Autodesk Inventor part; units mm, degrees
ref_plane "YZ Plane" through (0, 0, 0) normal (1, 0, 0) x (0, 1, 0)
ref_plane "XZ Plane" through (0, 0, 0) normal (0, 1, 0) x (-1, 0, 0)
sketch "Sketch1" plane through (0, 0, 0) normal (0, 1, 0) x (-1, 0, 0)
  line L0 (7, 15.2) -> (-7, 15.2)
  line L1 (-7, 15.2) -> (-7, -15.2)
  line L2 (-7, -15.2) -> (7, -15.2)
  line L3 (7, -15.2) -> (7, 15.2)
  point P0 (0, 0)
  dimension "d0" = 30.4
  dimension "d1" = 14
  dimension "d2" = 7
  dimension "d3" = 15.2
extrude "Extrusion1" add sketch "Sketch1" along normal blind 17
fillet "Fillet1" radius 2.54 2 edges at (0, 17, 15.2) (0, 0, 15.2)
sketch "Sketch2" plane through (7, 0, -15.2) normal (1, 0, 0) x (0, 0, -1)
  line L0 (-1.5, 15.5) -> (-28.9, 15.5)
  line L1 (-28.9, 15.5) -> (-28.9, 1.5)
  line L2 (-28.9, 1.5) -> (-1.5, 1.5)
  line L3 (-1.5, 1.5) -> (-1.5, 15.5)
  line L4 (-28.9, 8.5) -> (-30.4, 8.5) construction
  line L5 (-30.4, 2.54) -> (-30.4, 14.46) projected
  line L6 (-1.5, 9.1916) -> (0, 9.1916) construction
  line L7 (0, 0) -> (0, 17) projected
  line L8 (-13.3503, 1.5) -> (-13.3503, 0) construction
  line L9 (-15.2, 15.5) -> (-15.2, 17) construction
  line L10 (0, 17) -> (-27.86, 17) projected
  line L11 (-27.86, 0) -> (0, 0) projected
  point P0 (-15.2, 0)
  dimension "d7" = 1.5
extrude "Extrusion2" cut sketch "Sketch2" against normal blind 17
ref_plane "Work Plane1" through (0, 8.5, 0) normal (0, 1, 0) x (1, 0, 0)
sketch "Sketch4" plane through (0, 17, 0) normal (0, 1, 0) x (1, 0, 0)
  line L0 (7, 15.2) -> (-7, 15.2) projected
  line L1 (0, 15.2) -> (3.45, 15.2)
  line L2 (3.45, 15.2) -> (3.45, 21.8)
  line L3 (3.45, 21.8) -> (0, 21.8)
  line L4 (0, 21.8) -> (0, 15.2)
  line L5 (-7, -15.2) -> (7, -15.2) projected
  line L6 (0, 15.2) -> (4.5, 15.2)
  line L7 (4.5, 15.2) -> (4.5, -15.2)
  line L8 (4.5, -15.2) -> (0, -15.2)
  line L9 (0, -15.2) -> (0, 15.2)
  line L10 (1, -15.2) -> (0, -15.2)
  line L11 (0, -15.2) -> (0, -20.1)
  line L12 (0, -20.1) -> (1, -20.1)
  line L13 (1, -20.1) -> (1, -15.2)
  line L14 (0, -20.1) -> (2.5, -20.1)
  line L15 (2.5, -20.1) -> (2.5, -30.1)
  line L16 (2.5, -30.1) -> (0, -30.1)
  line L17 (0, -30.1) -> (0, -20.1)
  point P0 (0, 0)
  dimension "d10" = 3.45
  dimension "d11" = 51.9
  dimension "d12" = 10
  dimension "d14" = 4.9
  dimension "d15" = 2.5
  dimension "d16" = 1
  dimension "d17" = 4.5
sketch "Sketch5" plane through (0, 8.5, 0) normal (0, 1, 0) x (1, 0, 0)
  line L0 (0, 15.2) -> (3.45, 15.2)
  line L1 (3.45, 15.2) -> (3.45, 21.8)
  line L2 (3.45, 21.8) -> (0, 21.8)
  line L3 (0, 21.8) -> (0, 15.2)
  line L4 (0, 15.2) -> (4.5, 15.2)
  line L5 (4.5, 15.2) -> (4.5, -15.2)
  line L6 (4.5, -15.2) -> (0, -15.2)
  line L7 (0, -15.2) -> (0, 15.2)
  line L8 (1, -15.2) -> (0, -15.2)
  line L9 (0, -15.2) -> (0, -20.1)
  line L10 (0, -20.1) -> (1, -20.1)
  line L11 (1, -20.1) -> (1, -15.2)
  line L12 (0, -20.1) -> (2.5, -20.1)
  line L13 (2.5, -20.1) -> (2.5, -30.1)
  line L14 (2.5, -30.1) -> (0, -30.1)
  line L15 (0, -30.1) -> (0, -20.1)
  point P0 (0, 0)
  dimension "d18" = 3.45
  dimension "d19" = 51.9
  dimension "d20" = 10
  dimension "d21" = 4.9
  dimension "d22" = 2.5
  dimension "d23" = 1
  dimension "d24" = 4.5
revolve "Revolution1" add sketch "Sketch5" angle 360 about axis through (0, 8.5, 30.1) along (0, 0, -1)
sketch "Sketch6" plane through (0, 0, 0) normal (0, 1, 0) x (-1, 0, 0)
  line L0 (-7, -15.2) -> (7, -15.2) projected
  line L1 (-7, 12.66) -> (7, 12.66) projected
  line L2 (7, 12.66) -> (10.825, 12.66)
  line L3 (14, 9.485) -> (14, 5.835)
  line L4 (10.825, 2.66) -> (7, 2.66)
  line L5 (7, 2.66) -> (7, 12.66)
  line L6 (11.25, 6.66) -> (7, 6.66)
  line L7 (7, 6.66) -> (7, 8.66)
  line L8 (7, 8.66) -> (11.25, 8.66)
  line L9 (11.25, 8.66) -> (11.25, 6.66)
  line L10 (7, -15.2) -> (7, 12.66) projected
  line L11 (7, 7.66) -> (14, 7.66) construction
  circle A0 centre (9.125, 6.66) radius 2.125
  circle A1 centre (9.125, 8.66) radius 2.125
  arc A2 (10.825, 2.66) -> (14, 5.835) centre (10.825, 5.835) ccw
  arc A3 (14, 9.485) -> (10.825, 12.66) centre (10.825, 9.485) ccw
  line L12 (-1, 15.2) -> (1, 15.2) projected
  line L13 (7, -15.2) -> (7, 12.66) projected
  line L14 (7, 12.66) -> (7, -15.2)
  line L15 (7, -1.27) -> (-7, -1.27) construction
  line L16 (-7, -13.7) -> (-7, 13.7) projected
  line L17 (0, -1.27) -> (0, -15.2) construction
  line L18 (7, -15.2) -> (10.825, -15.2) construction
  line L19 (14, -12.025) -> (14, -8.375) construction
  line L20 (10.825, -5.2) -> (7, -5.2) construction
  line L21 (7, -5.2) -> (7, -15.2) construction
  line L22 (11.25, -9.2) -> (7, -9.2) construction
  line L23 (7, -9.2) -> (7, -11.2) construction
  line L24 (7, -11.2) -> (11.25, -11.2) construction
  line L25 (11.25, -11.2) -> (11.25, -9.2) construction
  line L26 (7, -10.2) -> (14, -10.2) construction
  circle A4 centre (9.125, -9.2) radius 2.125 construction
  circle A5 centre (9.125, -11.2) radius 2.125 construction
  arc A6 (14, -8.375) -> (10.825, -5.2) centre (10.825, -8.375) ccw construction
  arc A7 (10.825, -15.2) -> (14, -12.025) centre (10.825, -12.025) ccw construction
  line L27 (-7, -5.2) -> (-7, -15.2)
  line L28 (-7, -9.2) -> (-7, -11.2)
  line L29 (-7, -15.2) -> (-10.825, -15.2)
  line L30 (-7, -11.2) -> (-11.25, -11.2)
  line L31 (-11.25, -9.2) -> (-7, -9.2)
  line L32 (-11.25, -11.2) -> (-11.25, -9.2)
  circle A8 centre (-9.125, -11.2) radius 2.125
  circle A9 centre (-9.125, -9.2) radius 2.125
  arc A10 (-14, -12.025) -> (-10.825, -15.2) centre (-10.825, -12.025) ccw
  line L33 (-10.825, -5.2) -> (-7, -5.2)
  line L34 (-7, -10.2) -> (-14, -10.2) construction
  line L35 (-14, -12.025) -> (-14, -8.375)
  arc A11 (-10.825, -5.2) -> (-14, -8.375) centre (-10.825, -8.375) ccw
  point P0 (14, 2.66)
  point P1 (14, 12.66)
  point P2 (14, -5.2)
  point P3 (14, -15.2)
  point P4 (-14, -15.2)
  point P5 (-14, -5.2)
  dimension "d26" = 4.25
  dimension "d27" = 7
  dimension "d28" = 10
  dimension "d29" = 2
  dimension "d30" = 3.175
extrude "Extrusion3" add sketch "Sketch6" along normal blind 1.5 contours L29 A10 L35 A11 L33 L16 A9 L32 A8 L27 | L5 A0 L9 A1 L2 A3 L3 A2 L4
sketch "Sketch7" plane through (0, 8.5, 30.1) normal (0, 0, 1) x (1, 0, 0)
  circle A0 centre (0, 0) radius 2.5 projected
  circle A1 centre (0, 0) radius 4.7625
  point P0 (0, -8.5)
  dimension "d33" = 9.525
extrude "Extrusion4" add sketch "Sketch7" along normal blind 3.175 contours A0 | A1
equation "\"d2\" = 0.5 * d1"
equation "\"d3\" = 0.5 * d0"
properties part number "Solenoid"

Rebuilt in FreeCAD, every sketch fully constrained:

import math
import FreeCAD as App
import Part
import Sketcher
from FreeCAD import Vector


def edges_at(feature, points):
    """Names of the edges that pass closest to the given points."""
    edges = feature.Shape.Edges
    near = lambda p: min(range(len(edges)), key=lambda i: edges[i].distToShape(Part.Vertex(*p))[0])
    return sorted({f"Edge{near(p) + 1}" for p in points})


def add_polygon(sketch, points):
    """Adds a closed chain of lines whose ends are joined by coincident constraints."""
    first, n = sketch.GeometryCount, len(points)
    for a, b in zip(points, points[1:] + points[:1]):
        sketch.addGeometry(Part.LineSegment(App.Vector(*a, 0), App.Vector(*b, 0)), False)
    for i in range(n):
        sketch.addConstraint(Sketcher.Constraint("Coincident", first + i, 2, first + (i + 1) % n, 1))

doc = App.newDocument("Part")
body = doc.addObject("PartDesign::Body", "Body")

# Sketch on XZ plane
sketch1 = body.newObject("Sketcher::SketchObject", "Sketch")
sketch1.AttachmentSupport = (doc.getObject("XZ_Plane"), [""])
sketch1.MapMode = "FlatFace"
add_polygon(sketch1, [(-7, -15.2), (-7, 15.2), (7, 15.2), (7, -15.2)])  # lines 0-3
sketch1.addConstraint([
    Sketcher.Constraint("Vertical", 0),
    Sketcher.Constraint("Horizontal", 1),
    Sketcher.Constraint("Vertical", 2),
    Sketcher.Constraint("Horizontal", 3),
    Sketcher.Constraint("Symmetric", 0, 2, 2, 2, -1, 1),
    Sketcher.Constraint("DistanceX", 1, 1, 1, 2, 14.0),
    Sketcher.Constraint("DistanceY", 0, 1, 0, 2, 30.4),
])
pad1 = body.newObject("PartDesign::Pad", "Pad")
pad1.Profile = sketch1
pad1.Length = 17
pad1.Reversed = True
doc.recompute()

fillet = body.newObject("PartDesign::Fillet", "Fillet")
fillet.Base = (pad1, edges_at(pad1, [(0, 17, 15.2), (0, 0, 15.2)]))
fillet.Radius = 2.54

# Sketch on YZ plane
sketch2 = body.newObject("Sketcher::SketchObject", "Sketch001")
sketch2.AttachmentSupport = (doc.getObject("YZ_Plane"), [""])
sketch2.MapMode = "FlatFace"
sketch2.AttachmentOffset = App.Placement(Vector(0, 0, 7), App.Rotation())
add_polygon(sketch2, [(1.5, -13.7), (15.5, -13.7), (15.5, 13.7), (1.5, 13.7)])  # lines 0-3
sketch2.addConstraint([
    Sketcher.Constraint("Horizontal", 0),
    Sketcher.Constraint("Vertical", 1),
    Sketcher.Constraint("Horizontal", 2),
    Sketcher.Constraint("Vertical", 3),
    Sketcher.Constraint("DistanceX", -1, 1, 2, 2, 1.5),
    Sketcher.Constraint("DistanceX", 0, 1, 0, 2, 14.0),
    Sketcher.Constraint("DistanceY", 1, 1, 1, 2, 27.4),
    Sketcher.Constraint("DistanceY", 0, 2, -1, 1, 13.7),
])
pocket1 = body.newObject("PartDesign::Pocket", "Pocket")
pocket1.Profile = sketch2
pocket1.Length = 17

# Sketch on XZ plane
sketch3 = body.newObject("Sketcher::SketchObject", "Sketch002")
sketch3.AttachmentSupport = (doc.getObject("XZ_Plane"), [""])
sketch3.MapMode = "FlatFace"
sketch3.AttachmentOffset = App.Placement(Vector(0, 0, -8.5), App.Rotation())
add_polygon(sketch3, [(0, -21.8), (0, 30.1), (2.5, 30.1), (2.5, 20.1), (1, 20.1), (1, 15.2), (4.5, 15.2), (4.5, -15.2), (3.45, -15.2), (3.45, -21.8)])  # lines 0-9
sketch3.addConstraint([
    Sketcher.Constraint("Vertical", 0),
    Sketcher.Constraint("Horizontal", 1),
    Sketcher.Constraint("Vertical", 2),
    Sketcher.Constraint("Horizontal", 3),
    Sketcher.Constraint("Vertical", 4),
    Sketcher.Constraint("Horizontal", 5),
    Sketcher.Constraint("Vertical", 6),
    Sketcher.Constraint("Horizontal", 7),
    Sketcher.Constraint("Vertical", 8),
    Sketcher.Constraint("Horizontal", 9),
    Sketcher.Constraint("PointOnObject", 0, 2, -2),
    Sketcher.Constraint("DistanceY", 2, 2, 2, 1, 10.0),
    Sketcher.Constraint("DistanceX", 1, 1, 1, 2, 2.5),
    Sketcher.Constraint("DistanceY", 0, 1, 0, 2, 51.9),
    Sketcher.Constraint("DistanceY", 4, 2, 4, 1, 4.9),
    Sketcher.Constraint("DistanceX", -1, 1, 3, 2, 1.0),
    Sketcher.Constraint("DistanceX", 9, 2, 9, 1, 3.45),
    Sketcher.Constraint("DistanceX", -1, 1, 5, 2, 4.5),
    Sketcher.Constraint("DistanceY", 6, 2, 6, 1, 30.4),
    Sketcher.Constraint("DistanceY", -1, 1, 0, 2, 30.1),
])
revolution = body.newObject("PartDesign::Revolution", "Revolution")
revolution.Profile = sketch3
revolution.ReferenceAxis = (sketch3, ["V_Axis"])
revolution.Angle = 360

# Sketch on XZ plane
sketch4 = body.newObject("Sketcher::SketchObject", "Sketch003")
sketch4.AttachmentSupport = (doc.getObject("XZ_Plane"), [""])
sketch4.MapMode = "FlatFace"
sketch4.addGeometry([
    Part.LineSegment(Vector(10.825, -15.2, 0), Vector(7, -15.2, 0)),  # 0
    Part.LineSegment(Vector(7, -15.2, 0), Vector(7, -11.2, 0)),  # 1
    Part.ArcOfCircle(Part.Circle(Vector(9.125, -11.2, 0), Vector(0, 0, 1), 2.125), math.radians(180), math.radians(360)),  # 2
    Part.LineSegment(Vector(11.25, -11.2, 0), Vector(11.25, -9.2, 0)),  # 3
    Part.ArcOfCircle(Part.Circle(Vector(9.125, -9.2, 0), Vector(0, 0, 1), 2.125), math.radians(0), math.radians(180)),  # 4
    Part.LineSegment(Vector(7, -9.2, 0), Vector(7, -5.2, 0)),  # 5
    Part.LineSegment(Vector(7, -5.2, 0), Vector(10.825, -5.2, 0)),  # 6
    Part.ArcOfCircle(Part.Circle(Vector(10.825, -8.375, 0), Vector(0, 0, 1), 3.175), math.radians(0), math.radians(90)),  # 7
    Part.LineSegment(Vector(14, -8.375, 0), Vector(14, -12.025, 0)),  # 8
    Part.ArcOfCircle(Part.Circle(Vector(10.825, -12.025, 0), Vector(0, 0, 1), 3.175), math.radians(-90), math.radians(0)),  # 9
    Part.LineSegment(Vector(-7, 6.66, 0), Vector(-7, 2.66, 0)),  # 10
    Part.LineSegment(Vector(-7, 2.66, 0), Vector(-10.825, 2.66, 0)),  # 11
    Part.ArcOfCircle(Part.Circle(Vector(-10.825, 5.835, 0), Vector(0, 0, 1), 3.175), math.radians(180), math.radians(270)),  # 12
    Part.LineSegment(Vector(-14, 5.835, 0), Vector(-14, 9.485, 0)),  # 13
    Part.ArcOfCircle(Part.Circle(Vector(-10.825, 9.485, 0), Vector(0, 0, 1), 3.175), math.radians(90), math.radians(180)),  # 14
    Part.LineSegment(Vector(-10.825, 12.66, 0), Vector(-7, 12.66, 0)),  # 15
    Part.LineSegment(Vector(-7, 12.66, 0), Vector(-7, 8.66, 0)),  # 16
    Part.ArcOfCircle(Part.Circle(Vector(-9.125, 8.66, 0), Vector(0, 0, 1), 2.125), math.radians(0), math.radians(180)),  # 17
    Part.LineSegment(Vector(-11.25, 8.66, 0), Vector(-11.25, 6.66, 0)),  # 18
    Part.ArcOfCircle(Part.Circle(Vector(-9.125, 6.66, 0), Vector(0, 0, 1), 2.125), math.radians(180), math.radians(360)),  # 19
], False)
sketch4.addConstraint([
    Sketcher.Constraint("Coincident", 0, 2, 1, 1),
    Sketcher.Constraint("Tangent", 1, 2, 2, 1),
    Sketcher.Constraint("Tangent", 2, 2, 3, 1),
    Sketcher.Constraint("Tangent", 3, 2, 4, 1),
    Sketcher.Constraint("Tangent", 4, 2, 5, 1),
    Sketcher.Constraint("Coincident", 5, 2, 6, 1),
    Sketcher.Constraint("Tangent", 6, 2, 7, 2),
    Sketcher.Constraint("Tangent", 7, 1, 8, 1),
    Sketcher.Constraint("Tangent", 8, 2, 9, 2),
    Sketcher.Constraint("Tangent", 9, 1, 0, 1),
    Sketcher.Constraint("Coincident", 10, 2, 11, 1),
    Sketcher.Constraint("Tangent", 11, 2, 12, 2),
    Sketcher.Constraint("Tangent", 12, 1, 13, 1),
    Sketcher.Constraint("Tangent", 13, 2, 14, 2),
    Sketcher.Constraint("Tangent", 14, 1, 15, 1),
    Sketcher.Constraint("Coincident", 15, 2, 16, 1),
    Sketcher.Constraint("Tangent", 16, 2, 17, 1),
    Sketcher.Constraint("Tangent", 17, 2, 18, 1),
    Sketcher.Constraint("Tangent", 18, 2, 19, 1),
    Sketcher.Constraint("Tangent", 19, 2, 10, 1),
    Sketcher.Constraint("Horizontal", 0),
    Sketcher.Constraint("Vertical", 1),
    Sketcher.Constraint("Vertical", 3),
    Sketcher.Constraint("Vertical", 5),
    Sketcher.Constraint("Horizontal", 6),
    Sketcher.Constraint("Vertical", 8),
    Sketcher.Constraint("Vertical", 10),
    Sketcher.Constraint("Horizontal", 11),
    Sketcher.Constraint("Vertical", 13),
    Sketcher.Constraint("Horizontal", 15),
    Sketcher.Constraint("Vertical", 16),
    Sketcher.Constraint("Vertical", 18),
    Sketcher.Constraint("Equal", 2, 4),
    Sketcher.Constraint("Equal", 7, 9),
    Sketcher.Constraint("Equal", 9, 12),
    Sketcher.Constraint("Equal", 12, 14),
    Sketcher.Constraint("Equal", 4, 17),
    Sketcher.Constraint("Equal", 17, 19),
    Sketcher.Constraint("Equal", 6, 11),
    Sketcher.Constraint("Equal", 1, 5),
    Sketcher.Constraint("Equal", 5, 10),
    Sketcher.Constraint("Equal", 8, 13),
    Sketcher.Constraint("Equal", 10, 16),
    Sketcher.Constraint("DistanceY", 3, 1, 3, 2, 2.0),
    Sketcher.Constraint("DistanceX", -1, 1, 0, 2, 7.0),
    Sketcher.Constraint("DistanceX", 10, 2, -1, 1, 7.0),
    Sketcher.Constraint("Radius", 2, 2.125),
    Sketcher.Constraint("Radius", 7, 3.175),
    Sketcher.Constraint("DistanceX", 13, 2, 15, 2, 7.0),
    Sketcher.Constraint("DistanceY", 1, 1, 1, 2, 4.0),
    Sketcher.Constraint("DistanceY", 2, 3, -1, 1, 11.2),
    Sketcher.Constraint("DistanceY", -1, 1, 17, 3, 8.66),
])
pad2 = body.newObject("PartDesign::Pad", "Pad001")
pad2.Profile = sketch4
pad2.Length = 1.5
pad2.Reversed = True

# Sketch on XY plane
sketch5 = body.newObject("Sketcher::SketchObject", "Sketch004")
sketch5.AttachmentSupport = (doc.getObject("XY_Plane"), [""])
sketch5.MapMode = "FlatFace"
sketch5.AttachmentOffset = App.Placement(Vector(0, 0, 30.1), App.Rotation())
sketch5.addGeometry(Part.Circle(Vector(0, 8.5, 0), Vector(0, 0, 1), 4.7625), False)
sketch5.addConstraint([
    Sketcher.Constraint("PointOnObject", 0, 3, -2),
    Sketcher.Constraint("Diameter", 0, 9.525),
    Sketcher.Constraint("DistanceY", -1, 1, 0, 3, 8.5),
])
pad3 = body.newObject("PartDesign::Pad", "Pad002")
pad3.Profile = sketch5
pad3.Length = 3.175

doc.recompute()
